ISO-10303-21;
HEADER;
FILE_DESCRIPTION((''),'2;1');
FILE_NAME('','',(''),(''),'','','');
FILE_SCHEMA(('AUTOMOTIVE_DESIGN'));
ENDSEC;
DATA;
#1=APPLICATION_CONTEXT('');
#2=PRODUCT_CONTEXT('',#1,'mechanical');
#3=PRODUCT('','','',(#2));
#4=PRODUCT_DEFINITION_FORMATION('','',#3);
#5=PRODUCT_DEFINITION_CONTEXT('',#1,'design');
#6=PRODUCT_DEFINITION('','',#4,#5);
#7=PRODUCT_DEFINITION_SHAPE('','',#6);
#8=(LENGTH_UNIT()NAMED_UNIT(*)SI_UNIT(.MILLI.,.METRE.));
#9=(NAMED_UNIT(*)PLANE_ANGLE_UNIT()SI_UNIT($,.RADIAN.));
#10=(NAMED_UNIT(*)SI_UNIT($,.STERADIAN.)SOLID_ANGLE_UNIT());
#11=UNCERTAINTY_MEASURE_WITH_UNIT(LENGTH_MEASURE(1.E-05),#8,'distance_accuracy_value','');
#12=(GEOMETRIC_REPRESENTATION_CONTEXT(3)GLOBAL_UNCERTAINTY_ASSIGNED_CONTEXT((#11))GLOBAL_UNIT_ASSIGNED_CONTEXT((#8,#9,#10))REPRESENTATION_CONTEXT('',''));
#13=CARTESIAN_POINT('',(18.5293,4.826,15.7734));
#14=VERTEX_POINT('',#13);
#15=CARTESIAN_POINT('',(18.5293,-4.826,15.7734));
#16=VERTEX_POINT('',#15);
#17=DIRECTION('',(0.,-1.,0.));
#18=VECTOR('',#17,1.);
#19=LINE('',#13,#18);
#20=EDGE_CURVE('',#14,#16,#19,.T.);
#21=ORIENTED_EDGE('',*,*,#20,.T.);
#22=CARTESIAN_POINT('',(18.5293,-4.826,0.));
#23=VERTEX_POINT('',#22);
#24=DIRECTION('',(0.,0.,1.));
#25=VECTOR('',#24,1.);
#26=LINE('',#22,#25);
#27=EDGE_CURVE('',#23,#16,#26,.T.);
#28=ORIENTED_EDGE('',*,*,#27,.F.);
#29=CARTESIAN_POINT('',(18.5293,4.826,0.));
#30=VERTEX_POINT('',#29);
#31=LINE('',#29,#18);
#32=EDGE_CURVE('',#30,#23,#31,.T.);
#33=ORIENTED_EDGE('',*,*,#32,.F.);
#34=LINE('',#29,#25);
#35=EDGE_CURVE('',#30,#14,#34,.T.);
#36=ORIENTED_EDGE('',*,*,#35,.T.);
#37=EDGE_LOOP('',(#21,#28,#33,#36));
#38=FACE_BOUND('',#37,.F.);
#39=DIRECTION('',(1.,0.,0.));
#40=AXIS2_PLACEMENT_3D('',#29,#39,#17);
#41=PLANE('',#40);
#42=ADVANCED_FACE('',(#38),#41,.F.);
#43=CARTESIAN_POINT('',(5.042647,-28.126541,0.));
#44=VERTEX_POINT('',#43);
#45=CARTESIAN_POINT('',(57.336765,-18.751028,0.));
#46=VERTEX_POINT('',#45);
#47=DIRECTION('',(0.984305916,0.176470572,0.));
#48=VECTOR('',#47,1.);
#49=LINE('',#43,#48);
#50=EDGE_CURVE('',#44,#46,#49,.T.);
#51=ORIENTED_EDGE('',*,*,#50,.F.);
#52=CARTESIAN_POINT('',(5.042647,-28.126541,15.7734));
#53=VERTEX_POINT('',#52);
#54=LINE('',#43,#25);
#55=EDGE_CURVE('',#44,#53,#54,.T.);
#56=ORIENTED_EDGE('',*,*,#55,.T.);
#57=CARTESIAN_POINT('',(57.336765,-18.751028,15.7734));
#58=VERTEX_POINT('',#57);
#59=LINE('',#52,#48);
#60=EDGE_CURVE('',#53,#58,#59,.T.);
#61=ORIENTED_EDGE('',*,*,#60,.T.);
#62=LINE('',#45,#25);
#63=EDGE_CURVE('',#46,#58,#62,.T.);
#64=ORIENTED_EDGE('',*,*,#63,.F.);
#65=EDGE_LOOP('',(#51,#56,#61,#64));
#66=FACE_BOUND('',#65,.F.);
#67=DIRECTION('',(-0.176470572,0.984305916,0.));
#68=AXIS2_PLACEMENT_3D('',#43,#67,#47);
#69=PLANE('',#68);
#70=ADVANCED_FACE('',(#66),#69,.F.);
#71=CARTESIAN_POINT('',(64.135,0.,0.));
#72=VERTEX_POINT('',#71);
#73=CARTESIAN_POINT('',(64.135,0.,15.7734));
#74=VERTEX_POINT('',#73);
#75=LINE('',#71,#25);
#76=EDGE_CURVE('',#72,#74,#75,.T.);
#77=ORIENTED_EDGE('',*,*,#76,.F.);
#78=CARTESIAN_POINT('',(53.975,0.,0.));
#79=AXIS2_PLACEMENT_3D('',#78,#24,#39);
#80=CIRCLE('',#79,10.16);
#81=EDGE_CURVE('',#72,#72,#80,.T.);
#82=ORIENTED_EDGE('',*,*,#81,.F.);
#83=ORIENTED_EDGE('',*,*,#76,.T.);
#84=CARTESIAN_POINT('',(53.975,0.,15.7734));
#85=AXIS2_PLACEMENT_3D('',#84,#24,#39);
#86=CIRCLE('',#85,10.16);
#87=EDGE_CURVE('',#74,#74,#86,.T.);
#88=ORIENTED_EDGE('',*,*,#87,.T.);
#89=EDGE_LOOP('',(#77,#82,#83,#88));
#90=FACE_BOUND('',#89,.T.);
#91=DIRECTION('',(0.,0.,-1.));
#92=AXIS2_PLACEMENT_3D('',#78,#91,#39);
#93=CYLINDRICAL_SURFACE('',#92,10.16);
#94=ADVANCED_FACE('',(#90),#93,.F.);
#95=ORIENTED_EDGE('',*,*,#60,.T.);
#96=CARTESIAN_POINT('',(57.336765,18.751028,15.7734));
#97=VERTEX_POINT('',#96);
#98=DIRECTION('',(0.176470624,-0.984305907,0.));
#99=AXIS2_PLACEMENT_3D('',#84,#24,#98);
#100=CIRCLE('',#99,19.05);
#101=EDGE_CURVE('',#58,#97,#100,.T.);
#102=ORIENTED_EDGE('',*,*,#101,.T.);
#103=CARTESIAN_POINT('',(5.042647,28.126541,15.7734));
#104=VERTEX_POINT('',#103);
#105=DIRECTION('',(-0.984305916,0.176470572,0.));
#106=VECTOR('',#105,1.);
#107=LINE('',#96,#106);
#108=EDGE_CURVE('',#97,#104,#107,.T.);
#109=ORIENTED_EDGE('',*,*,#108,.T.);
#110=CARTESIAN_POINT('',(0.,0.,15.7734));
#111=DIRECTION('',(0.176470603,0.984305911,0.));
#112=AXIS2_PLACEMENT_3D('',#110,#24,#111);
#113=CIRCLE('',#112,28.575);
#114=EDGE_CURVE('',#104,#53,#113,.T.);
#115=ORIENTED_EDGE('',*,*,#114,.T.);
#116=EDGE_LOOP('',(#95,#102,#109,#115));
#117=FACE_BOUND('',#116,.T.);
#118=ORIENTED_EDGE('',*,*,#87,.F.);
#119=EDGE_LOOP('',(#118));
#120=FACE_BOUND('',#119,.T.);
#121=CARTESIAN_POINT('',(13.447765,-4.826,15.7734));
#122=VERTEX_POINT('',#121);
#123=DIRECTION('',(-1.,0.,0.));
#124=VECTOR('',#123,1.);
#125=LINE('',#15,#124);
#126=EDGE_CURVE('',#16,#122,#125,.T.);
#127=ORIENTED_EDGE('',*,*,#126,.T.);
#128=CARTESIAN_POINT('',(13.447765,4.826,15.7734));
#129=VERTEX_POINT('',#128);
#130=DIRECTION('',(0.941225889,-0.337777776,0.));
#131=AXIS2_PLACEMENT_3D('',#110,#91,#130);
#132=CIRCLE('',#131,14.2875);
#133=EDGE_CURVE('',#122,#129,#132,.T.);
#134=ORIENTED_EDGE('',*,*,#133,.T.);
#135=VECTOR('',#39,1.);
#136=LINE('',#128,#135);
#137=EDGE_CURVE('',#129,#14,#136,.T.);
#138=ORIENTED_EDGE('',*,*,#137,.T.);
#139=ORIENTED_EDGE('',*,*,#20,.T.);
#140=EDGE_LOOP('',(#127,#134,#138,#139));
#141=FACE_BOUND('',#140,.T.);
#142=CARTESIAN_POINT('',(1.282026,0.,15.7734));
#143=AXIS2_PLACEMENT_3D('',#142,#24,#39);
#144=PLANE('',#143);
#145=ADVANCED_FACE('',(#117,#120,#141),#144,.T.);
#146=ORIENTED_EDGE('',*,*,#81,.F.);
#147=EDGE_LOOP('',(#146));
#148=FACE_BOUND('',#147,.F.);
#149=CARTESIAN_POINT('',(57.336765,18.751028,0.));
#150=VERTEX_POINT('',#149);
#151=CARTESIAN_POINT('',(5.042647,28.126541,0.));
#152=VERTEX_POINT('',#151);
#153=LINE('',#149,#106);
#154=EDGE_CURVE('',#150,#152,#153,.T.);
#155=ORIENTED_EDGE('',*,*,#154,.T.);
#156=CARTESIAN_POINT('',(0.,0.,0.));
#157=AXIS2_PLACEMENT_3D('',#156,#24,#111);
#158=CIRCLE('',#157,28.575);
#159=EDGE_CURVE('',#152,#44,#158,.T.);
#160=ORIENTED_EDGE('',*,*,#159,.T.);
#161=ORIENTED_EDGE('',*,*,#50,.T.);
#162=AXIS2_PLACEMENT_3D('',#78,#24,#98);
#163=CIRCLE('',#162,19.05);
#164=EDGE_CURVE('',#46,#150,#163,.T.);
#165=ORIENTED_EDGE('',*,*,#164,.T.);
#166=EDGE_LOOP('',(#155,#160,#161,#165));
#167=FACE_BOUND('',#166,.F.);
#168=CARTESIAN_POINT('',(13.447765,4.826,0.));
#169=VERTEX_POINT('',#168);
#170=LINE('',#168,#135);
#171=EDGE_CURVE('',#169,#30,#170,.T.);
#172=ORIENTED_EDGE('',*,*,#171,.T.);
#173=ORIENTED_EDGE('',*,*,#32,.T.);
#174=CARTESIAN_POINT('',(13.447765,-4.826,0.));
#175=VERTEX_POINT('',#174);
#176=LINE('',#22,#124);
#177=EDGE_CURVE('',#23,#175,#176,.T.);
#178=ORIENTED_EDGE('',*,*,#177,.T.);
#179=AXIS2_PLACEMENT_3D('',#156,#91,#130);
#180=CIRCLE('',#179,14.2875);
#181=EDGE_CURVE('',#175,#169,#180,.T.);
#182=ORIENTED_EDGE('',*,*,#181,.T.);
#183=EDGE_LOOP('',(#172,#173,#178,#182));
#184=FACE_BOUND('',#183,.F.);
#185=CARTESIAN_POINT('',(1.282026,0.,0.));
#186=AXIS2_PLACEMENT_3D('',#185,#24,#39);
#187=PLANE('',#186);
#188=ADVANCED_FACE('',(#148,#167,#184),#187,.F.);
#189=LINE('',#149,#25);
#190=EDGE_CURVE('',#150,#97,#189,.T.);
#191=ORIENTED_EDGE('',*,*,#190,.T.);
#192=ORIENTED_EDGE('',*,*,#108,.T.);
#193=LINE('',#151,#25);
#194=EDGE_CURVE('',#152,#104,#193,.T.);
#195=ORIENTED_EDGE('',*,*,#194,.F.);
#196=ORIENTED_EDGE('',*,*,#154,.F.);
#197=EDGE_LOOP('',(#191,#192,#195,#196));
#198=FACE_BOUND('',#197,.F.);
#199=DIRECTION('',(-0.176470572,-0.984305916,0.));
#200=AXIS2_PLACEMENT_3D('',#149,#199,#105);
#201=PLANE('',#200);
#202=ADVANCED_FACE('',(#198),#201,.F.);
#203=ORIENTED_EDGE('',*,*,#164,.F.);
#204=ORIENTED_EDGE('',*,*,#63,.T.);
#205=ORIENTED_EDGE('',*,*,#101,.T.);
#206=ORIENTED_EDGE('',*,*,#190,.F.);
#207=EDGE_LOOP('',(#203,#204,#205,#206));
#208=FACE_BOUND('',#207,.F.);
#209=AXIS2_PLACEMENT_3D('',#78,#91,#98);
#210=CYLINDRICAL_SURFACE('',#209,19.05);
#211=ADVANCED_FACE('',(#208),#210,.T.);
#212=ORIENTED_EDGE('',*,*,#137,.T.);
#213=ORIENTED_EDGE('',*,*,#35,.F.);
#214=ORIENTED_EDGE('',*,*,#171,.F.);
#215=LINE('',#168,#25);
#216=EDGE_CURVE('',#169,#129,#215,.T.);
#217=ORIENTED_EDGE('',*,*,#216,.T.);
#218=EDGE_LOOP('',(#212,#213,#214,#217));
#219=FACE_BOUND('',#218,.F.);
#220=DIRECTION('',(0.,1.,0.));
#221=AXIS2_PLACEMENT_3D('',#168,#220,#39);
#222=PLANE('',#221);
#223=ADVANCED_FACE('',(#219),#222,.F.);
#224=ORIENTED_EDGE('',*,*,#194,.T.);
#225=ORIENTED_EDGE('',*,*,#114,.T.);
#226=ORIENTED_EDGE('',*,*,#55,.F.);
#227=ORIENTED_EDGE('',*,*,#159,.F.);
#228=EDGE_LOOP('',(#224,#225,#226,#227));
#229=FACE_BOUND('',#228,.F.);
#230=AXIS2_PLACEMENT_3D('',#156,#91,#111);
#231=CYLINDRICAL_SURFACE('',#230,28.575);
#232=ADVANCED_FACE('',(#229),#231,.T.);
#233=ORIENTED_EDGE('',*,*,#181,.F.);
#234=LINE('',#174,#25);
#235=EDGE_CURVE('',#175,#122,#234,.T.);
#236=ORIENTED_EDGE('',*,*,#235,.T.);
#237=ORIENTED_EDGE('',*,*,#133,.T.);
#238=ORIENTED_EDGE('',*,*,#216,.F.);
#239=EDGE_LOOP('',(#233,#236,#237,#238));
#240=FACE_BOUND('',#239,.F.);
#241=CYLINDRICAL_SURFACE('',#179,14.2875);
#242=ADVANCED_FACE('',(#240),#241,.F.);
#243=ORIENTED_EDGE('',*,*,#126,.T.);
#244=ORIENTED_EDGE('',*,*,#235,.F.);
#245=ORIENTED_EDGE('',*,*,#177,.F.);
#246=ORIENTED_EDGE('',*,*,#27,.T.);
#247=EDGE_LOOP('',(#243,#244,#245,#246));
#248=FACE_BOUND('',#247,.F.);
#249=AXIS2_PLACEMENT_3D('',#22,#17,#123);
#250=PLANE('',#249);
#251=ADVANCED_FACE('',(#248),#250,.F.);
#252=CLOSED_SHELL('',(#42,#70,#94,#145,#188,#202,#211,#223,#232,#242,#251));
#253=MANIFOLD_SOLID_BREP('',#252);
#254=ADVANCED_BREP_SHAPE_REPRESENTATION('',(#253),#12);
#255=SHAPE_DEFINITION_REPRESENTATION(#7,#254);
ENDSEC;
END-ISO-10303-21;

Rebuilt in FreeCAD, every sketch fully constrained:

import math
import FreeCAD as App
import Part
import Sketcher
from FreeCAD import Vector
Q = App.Units.Quantity

doc = App.newDocument("Part")
body = doc.addObject("PartDesign::Body", "Body")

# Sketch on XY plane
sketch1 = body.newObject("Sketcher::SketchObject", "Sketch")
sketch1.AttachmentSupport = (doc.getObject("XY_Plane"), [""])
sketch1.MapMode = "FlatFace"
sketch1.addGeometry([
    Part.ArcOfCircle(Part.Circle(Vector(0, 0, 0), Vector(0, 0, 1), 29), math.radians(80), math.radians(280)),  # 0
    Part.LineSegment(Vector(5, -28, 0), Vector(57, -19, 0)),  # 1
    Part.ArcOfCircle(Part.Circle(Vector(54, 0, 0), Vector(0, 0, 1), 19), math.radians(-80), math.radians(80)),  # 2
    Part.LineSegment(Vector(57, 19, 0), Vector(5, 28, 0)),  # 3
    Part.LineSegment(Vector(19, -5, 0), Vector(13, -5, 0)),  # 4
    Part.ArcOfCircle(Part.Circle(Vector(0, 0, 0), Vector(0, 0, 1), 14), math.radians(20), math.radians(340)),  # 5
    Part.LineSegment(Vector(13, 5, 0), Vector(19, 5, 0)),  # 6
    Part.LineSegment(Vector(19, 5, 0), Vector(19, -5, 0)),  # 7
    Part.Circle(Vector(54, 0, 0), Vector(0, 0, 1), 10),  # 8
], False)
sketch1.addConstraint([
    Sketcher.Constraint("Tangent", 0, 2, 1, 1),
    Sketcher.Constraint("Tangent", 1, 2, 2, 1),
    Sketcher.Constraint("Tangent", 2, 2, 3, 1),
    Sketcher.Constraint("Tangent", 3, 2, 0, 1),
    Sketcher.Constraint("Coincident", 4, 2, 5, 2),
    Sketcher.Constraint("Coincident", 5, 1, 6, 1),
    Sketcher.Constraint("Coincident", 6, 2, 7, 1),
    Sketcher.Constraint("Coincident", 7, 2, 4, 1),
    Sketcher.Constraint("Horizontal", 4),
    Sketcher.Constraint("Horizontal", 6),
    Sketcher.Constraint("Vertical", 7),
    Sketcher.Constraint("Coincident", 0, 3, -1, 1),
    Sketcher.Constraint("Coincident", 5, 3, -1, 1),
    Sketcher.Constraint("Coincident", 8, 3, 2, 3),
    Sketcher.Constraint("PointOnObject", 2, 3, -1),
    Sketcher.Constraint("Vertical", 4, 2, 5, 1),
    Sketcher.Constraint("Diameter", 8, Q("0.8 in")),
    Sketcher.Constraint("Radius", 2, Q("0.75 in")),
    Sketcher.Constraint("Radius", 0, Q("1.125 in")),
    Sketcher.Constraint("Radius", 5, Q("0.5625 in")),
    Sketcher.Constraint("DistanceY", 7, 2, 7, 1, Q("0.38 in")),
    Sketcher.Constraint("DistanceX", -1, 1, 2, 3, Q("2.125 in")),
    Sketcher.Constraint("DistanceX", -1, 1, 6, 2, Q("0.7295 in")),
])
pad1 = body.newObject("PartDesign::Pad", "Pad")
pad1.Profile = sketch1
pad1.Length = Q("0.621 in")

doc.recompute()
